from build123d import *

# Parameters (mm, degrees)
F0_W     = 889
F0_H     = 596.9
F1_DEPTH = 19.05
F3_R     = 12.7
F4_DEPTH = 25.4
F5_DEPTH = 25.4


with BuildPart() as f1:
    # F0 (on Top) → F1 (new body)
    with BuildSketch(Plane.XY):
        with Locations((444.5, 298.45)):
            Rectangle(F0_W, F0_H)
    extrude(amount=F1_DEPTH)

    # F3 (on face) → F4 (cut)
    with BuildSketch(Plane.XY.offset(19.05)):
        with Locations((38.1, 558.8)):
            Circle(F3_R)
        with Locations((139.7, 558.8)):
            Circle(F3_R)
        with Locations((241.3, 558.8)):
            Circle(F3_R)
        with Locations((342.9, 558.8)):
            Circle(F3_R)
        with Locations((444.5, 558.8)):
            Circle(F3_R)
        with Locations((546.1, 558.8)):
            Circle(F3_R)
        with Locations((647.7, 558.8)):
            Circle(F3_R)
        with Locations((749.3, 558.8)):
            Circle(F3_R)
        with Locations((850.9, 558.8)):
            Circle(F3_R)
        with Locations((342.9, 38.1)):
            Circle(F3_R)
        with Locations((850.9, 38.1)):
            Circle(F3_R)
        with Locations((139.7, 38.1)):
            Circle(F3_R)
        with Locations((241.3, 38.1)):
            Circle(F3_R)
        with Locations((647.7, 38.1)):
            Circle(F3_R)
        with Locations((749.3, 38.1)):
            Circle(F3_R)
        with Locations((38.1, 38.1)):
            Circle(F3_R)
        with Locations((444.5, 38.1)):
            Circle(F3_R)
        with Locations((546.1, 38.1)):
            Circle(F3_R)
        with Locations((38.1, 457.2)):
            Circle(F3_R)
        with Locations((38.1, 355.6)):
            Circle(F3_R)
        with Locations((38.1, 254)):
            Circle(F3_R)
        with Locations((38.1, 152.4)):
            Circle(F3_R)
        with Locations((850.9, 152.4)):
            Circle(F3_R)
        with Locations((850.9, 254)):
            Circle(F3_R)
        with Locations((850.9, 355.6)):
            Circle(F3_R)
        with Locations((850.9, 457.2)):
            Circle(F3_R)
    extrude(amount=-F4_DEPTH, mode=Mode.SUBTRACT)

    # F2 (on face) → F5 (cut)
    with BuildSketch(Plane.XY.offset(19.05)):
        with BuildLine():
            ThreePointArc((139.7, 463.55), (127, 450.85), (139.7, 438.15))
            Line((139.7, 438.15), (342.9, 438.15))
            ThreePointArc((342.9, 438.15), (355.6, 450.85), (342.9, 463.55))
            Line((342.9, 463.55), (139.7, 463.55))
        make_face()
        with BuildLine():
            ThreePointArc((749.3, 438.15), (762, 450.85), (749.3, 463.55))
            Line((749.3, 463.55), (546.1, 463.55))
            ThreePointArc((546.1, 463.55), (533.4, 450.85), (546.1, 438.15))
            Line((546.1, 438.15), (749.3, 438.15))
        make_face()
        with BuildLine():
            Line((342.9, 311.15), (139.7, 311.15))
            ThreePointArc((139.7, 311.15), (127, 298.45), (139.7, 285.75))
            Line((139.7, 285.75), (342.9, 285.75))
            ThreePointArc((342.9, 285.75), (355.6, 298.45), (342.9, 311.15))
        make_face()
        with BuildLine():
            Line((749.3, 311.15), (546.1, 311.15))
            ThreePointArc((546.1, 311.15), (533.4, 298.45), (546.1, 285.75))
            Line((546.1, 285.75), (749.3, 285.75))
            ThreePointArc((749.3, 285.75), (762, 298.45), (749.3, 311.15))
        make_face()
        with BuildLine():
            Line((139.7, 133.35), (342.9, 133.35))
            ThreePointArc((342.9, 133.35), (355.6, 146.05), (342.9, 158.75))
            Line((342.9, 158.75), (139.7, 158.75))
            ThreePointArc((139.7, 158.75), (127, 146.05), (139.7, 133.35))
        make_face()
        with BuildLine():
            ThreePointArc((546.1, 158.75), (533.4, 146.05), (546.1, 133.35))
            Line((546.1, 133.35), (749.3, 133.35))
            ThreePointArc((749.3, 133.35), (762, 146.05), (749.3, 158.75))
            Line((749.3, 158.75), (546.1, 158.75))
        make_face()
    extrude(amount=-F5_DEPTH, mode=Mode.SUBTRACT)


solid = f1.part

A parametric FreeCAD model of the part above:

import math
import FreeCAD as App
import Part
import Sketcher
from FreeCAD import Vector
Q = App.Units.Quantity

doc = App.newDocument("Part")
body = doc.addObject("PartDesign::Body", "Body")

# Sketch on XY plane
sketch1 = body.newObject("Sketcher::SketchObject", "Sketch")
sketch1.AttachmentSupport = (doc.getObject("XY_Plane"), [""])
sketch1.MapMode = "FlatFace"
sketch1.addGeometry(Part.LineSegment(Vector(0, 597, 0), Vector(0, 0, 0)), False)
sketch1.addGeometry(Part.LineSegment(Vector(0, 0, 0), Vector(889, 0, 0)), False)
sketch1.addGeometry(Part.LineSegment(Vector(889, 0, 0), Vector(889, 597, 0)), False)
sketch1.addGeometry(Part.LineSegment(Vector(889, 597, 0), Vector(0, 597, 0)), False)
sketch1.addConstraint(Sketcher.Constraint("Coincident", 0, 2, 1, 1))
sketch1.addConstraint(Sketcher.Constraint("Coincident", 1, 2, 2, 1))
sketch1.addConstraint(Sketcher.Constraint("Coincident", 2, 2, 3, 1))
sketch1.addConstraint(Sketcher.Constraint("Coincident", 3, 2, 0, 1))
sketch1.addConstraint(Sketcher.Constraint("Vertical", 0))
sketch1.addConstraint(Sketcher.Constraint("Horizontal", 1))
sketch1.addConstraint(Sketcher.Constraint("Vertical", 2))
sketch1.addConstraint(Sketcher.Constraint("Horizontal", 3))
sketch1.addConstraint(Sketcher.Constraint("Coincident", 0, 2, -1, 1))
sketch1.addConstraint(Sketcher.Constraint("DistanceX", 1, 1, 1, 2, Q("35 in")))
sketch1.addConstraint(Sketcher.Constraint("DistanceY", 0, 2, 0, 1, Q("23.5 in")))
pad1 = body.newObject("PartDesign::Pad", "Pad")
pad1.Profile = sketch1
pad1.Length = Q("0.75 in")

# Sketch on XY plane
sketch2 = body.newObject("Sketcher::SketchObject", "Sketch001")
sketch2.AttachmentSupport = (doc.getObject("XY_Plane"), [""])
sketch2.MapMode = "FlatFace"
sketch2.AttachmentOffset = App.Placement(Vector(0, 0, 0.75 * 25.4), App.Rotation())
sketch2.addGeometry(Part.Circle(Vector(38, 559, 0), Vector(0, 0, 1), 13), False)
sketch2.addGeometry(Part.Circle(Vector(140, 559, 0), Vector(0, 0, 1), 13), False)
sketch2.addGeometry(Part.Circle(Vector(241, 559, 0), Vector(0, 0, 1), 13), False)
sketch2.addGeometry(Part.Circle(Vector(343, 559, 0), Vector(0, 0, 1), 13), False)
sketch2.addGeometry(Part.Circle(Vector(444, 559, 0), Vector(0, 0, 1), 13), False)
sketch2.addGeometry(Part.Circle(Vector(546, 559, 0), Vector(0, 0, 1), 13), False)
sketch2.addGeometry(Part.Circle(Vector(648, 559, 0), Vector(0, 0, 1), 13), False)
sketch2.addGeometry(Part.Circle(Vector(749, 559, 0), Vector(0, 0, 1), 13), False)
sketch2.addGeometry(Part.Circle(Vector(851, 559, 0), Vector(0, 0, 1), 13), False)
sketch2.addGeometry(Part.Circle(Vector(343, 38, 0), Vector(0, 0, 1), 13), False)
sketch2.addGeometry(Part.Circle(Vector(851, 38, 0), Vector(0, 0, 1), 13), False)
sketch2.addGeometry(Part.Circle(Vector(140, 38, 0), Vector(0, 0, 1), 13), False)
sketch2.addGeometry(Part.Circle(Vector(241, 38, 0), Vector(0, 0, 1), 13), False)
sketch2.addGeometry(Part.Circle(Vector(648, 38, 0), Vector(0, 0, 1), 13), False)
sketch2.addGeometry(Part.Circle(Vector(749, 38, 0), Vector(0, 0, 1), 13), False)
sketch2.addGeometry(Part.Circle(Vector(38, 38, 0), Vector(0, 0, 1), 13), False)
sketch2.addGeometry(Part.Circle(Vector(444, 38, 0), Vector(0, 0, 1), 13), False)
sketch2.addGeometry(Part.Circle(Vector(546, 38, 0), Vector(0, 0, 1), 13), False)
sketch2.addGeometry(Part.Circle(Vector(38, 457, 0), Vector(0, 0, 1), 13), False)
sketch2.addGeometry(Part.Circle(Vector(38, 356, 0), Vector(0, 0, 1), 13), False)
sketch2.addGeometry(Part.Circle(Vector(38, 254, 0), Vector(0, 0, 1), 13), False)
sketch2.addGeometry(Part.Circle(Vector(38, 152, 0), Vector(0, 0, 1), 13), False)
sketch2.addGeometry(Part.Circle(Vector(851, 152, 0), Vector(0, 0, 1), 13), False)
sketch2.addGeometry(Part.Circle(Vector(851, 254, 0), Vector(0, 0, 1), 13), False)
sketch2.addGeometry(Part.Circle(Vector(851, 356, 0), Vector(0, 0, 1), 13), False)
sketch2.addGeometry(Part.Circle(Vector(851, 457, 0), Vector(0, 0, 1), 13), False)
sketch2.addConstraint(Sketcher.Constraint("Equal", 0, 1))
sketch2.addConstraint(Sketcher.Constraint("Equal", 1, 2))
sketch2.addConstraint(Sketcher.Constraint("Equal", 2, 3))
sketch2.addConstraint(Sketcher.Constraint("Equal", 3, 4))
sketch2.addConstraint(Sketcher.Constraint("Equal", 4, 5))
sketch2.addConstraint(Sketcher.Constraint("Equal", 5, 6))
sketch2.addConstraint(Sketcher.Constraint("Equal", 6, 7))
sketch2.addConstraint(Sketcher.Constraint("Equal", 7, 8))
sketch2.addConstraint(Sketcher.Constraint("Equal", 8, 9))
sketch2.addConstraint(Sketcher.Constraint("Equal", 9, 10))
sketch2.addConstraint(Sketcher.Constraint("Equal", 10, 11))
sketch2.addConstraint(Sketcher.Constraint("Equal", 11, 12))
sketch2.addConstraint(Sketcher.Constraint("Equal", 12, 13))
sketch2.addConstraint(Sketcher.Constraint("Equal", 13, 14))
sketch2.addConstraint(Sketcher.Constraint("Equal", 14, 15))
sketch2.addConstraint(Sketcher.Constraint("Equal", 15, 16))
sketch2.addConstraint(Sketcher.Constraint("Equal", 16, 17))
sketch2.addConstraint(Sketcher.Constraint("Equal", 17, 18))
sketch2.addConstraint(Sketcher.Constraint("Equal", 18, 19))
sketch2.addConstraint(Sketcher.Constraint("Equal", 19, 20))
sketch2.addConstraint(Sketcher.Constraint("Equal", 20, 21))
sketch2.addConstraint(Sketcher.Constraint("Equal", 21, 22))
sketch2.addConstraint(Sketcher.Constraint("Equal", 22, 23))
sketch2.addConstraint(Sketcher.Constraint("Equal", 23, 24))
sketch2.addConstraint(Sketcher.Constraint("Equal", 24, 25))
sketch2.addConstraint(Sketcher.Constraint("Horizontal", 0, 3, 1, 3))
sketch2.addConstraint(Sketcher.Constraint("Horizontal", 1, 3, 2, 3))
sketch2.addConstraint(Sketcher.Constraint("Horizontal", 2, 3, 3, 3))
sketch2.addConstraint(Sketcher.Constraint("Horizontal", 3, 3, 4, 3))
sketch2.addConstraint(Sketcher.Constraint("Horizontal", 4, 3, 5, 3))
sketch2.addConstraint(Sketcher.Constraint("Horizontal", 5, 3, 6, 3))
sketch2.addConstraint(Sketcher.Constraint("Horizontal", 6, 3, 7, 3))
sketch2.addConstraint(Sketcher.Constraint("Horizontal", 7, 3, 8, 3))
sketch2.addConstraint(Sketcher.Constraint("Horizontal", 9, 3, 10, 3))
sketch2.addConstraint(Sketcher.Constraint("Horizontal", 10, 3, 11, 3))
sketch2.addConstraint(Sketcher.Constraint("Horizontal", 11, 3, 12, 3))
sketch2.addConstraint(Sketcher.Constraint("Horizontal", 12, 3, 13, 3))
sketch2.addConstraint(Sketcher.Constraint("Horizontal", 13, 3, 14, 3))
sketch2.addConstraint(Sketcher.Constraint("Horizontal", 14, 3, 15, 3))
sketch2.addConstraint(Sketcher.Constraint("Horizontal", 15, 3, 16, 3))
sketch2.addConstraint(Sketcher.Constraint("Horizontal", 16, 3, 17, 3))
sketch2.addConstraint(Sketcher.Constraint("Horizontal", 21, 3, 22, 3))
sketch2.addConstraint(Sketcher.Constraint("Horizontal", 20, 3, 23, 3))
sketch2.addConstraint(Sketcher.Constraint("Horizontal", 19, 3, 24, 3))
sketch2.addConstraint(Sketcher.Constraint("Horizontal", 18, 3, 25, 3))
sketch2.addConstraint(Sketcher.Constraint("Vertical", 3, 3, 9, 3))
sketch2.addConstraint(Sketcher.Constraint("Vertical", 8, 3, 10, 3))
sketch2.addConstraint(Sketcher.Constraint("Vertical", 1, 3, 11, 3))
sketch2.addConstraint(Sketcher.Constraint("Vertical", 2, 3, 12, 3))
sketch2.addConstraint(Sketcher.Constraint("Vertical", 6, 3, 13, 3))
sketch2.addConstraint(Sketcher.Constraint("Vertical", 7, 3, 14, 3))
sketch2.addConstraint(Sketcher.Constraint("Vertical", 0, 3, 15, 3))
sketch2.addConstraint(Sketcher.Constraint("Vertical", 4, 3, 16, 3))
sketch2.addConstraint(Sketcher.Constraint("Vertical", 5, 3, 17, 3))
sketch2.addConstraint(Sketcher.Constraint("Vertical", 15, 3, 18, 3))
sketch2.addConstraint(Sketcher.Constraint("Vertical", 18, 3, 19, 3))
sketch2.addConstraint(Sketcher.Constraint("Vertical", 19, 3, 20, 3))
sketch2.addConstraint(Sketcher.Constraint("Vertical", 20, 3, 21, 3))
sketch2.addConstraint(Sketcher.Constraint("Vertical", 10, 3, 22, 3))
sketch2.addConstraint(Sketcher.Constraint("Vertical", 22, 3, 23, 3))
sketch2.addConstraint(Sketcher.Constraint("Vertical", 23, 3, 24, 3))
sketch2.addConstraint(Sketcher.Constraint("Vertical", 24, 3, 25, 3))
sketch2.addConstraint(Sketcher.Constraint("Diameter", 0, Q("1 in")))
sketch2.addConstraint(Sketcher.Constraint("DistanceY", -1, 1, 0, 3, Q("22 in")))
sketch2.addConstraint(Sketcher.Constraint("DistanceY", -1, 1, 18, 3, Q("18 in")))
sketch2.addConstraint(Sketcher.Constraint("DistanceY", -1, 1, 19, 3, Q("14 in")))
sketch2.addConstraint(Sketcher.Constraint("DistanceY", -1, 1, 20, 3, Q("10 in")))
sketch2.addConstraint(Sketcher.Constraint("DistanceY", -1, 1, 21, 3, Q("6 in")))
sketch2.addConstraint(Sketcher.Constraint("DistanceX", 0, 3, 1, 3, Q("4 in")))
sketch2.addConstraint(Sketcher.Constraint("DistanceX", 1, 3, 2, 3, Q("4 in")))
sketch2.addConstraint(Sketcher.Constraint("DistanceX", 2, 3, 3, 3, Q("4 in")))
sketch2.addConstraint(Sketcher.Constraint("DistanceX", 3, 3, 4, 3, Q("4 in")))
sketch2.addConstraint(Sketcher.Constraint("DistanceX", 4, 3, 5, 3, Q("4 in")))
sketch2.addConstraint(Sketcher.Constraint("DistanceX", 5, 3, 6, 3, Q("4 in")))
sketch2.addConstraint(Sketcher.Constraint("DistanceX", 6, 3, 7, 3, Q("4 in")))
sketch2.addConstraint(Sketcher.Constraint("DistanceX", 7, 3, 8, 3, Q("4 in")))
sketch2.addConstraint(Sketcher.Constraint("DistanceX", -1, 1, 0, 3, Q("1.5 in")))
sketch2.addConstraint(Sketcher.Constraint("DistanceY", -1, 1, 9, 3, Q("1.5 in")))
pocket1 = body.newObject("PartDesign::Pocket", "Pocket")
pocket1.Profile = sketch2
pocket1.Length = Q("1 in")

# Sketch on XY plane
sketch3 = body.newObject("Sketcher::SketchObject", "Sketch002")
sketch3.AttachmentSupport = (doc.getObject("XY_Plane"), [""])
sketch3.MapMode = "FlatFace"
sketch3.AttachmentOffset = App.Placement(Vector(0, 0, 0.75 * 25.4), App.Rotation())
sketch3.addGeometry(Part.ArcOfCircle(Part.Circle(Vector(140, 451, 0), Vector(0, 0, 1), 13), math.radians(90), math.radians(270)), False)
sketch3.addGeometry(Part.LineSegment(Vector(140, 438, 0), Vector(343, 438, 0)), False)
sketch3.addGeometry(Part.ArcOfCircle(Part.Circle(Vector(343, 451, 0), Vector(0, 0, 1), 13), math.radians(-90), math.radians(90)), False)
sketch3.addGeometry(Part.LineSegment(Vector(343, 464, 0), Vector(140, 464, 0)), False)
sketch3.addGeometry(Part.ArcOfCircle(Part.Circle(Vector(749, 451, 0), Vector(0, 0, 1), 13), math.radians(-90), math.radians(90)), False)
sketch3.addGeometry(Part.LineSegment(Vector(749, 464, 0), Vector(546, 464, 0)), False)
sketch3.addGeometry(Part.ArcOfCircle(Part.Circle(Vector(546, 451, 0), Vector(0, 0, 1), 13), math.radians(90), math.radians(270)), False)
sketch3.addGeometry(Part.LineSegment(Vector(546, 438, 0), Vector(749, 438, 0)), False)
sketch3.addGeometry(Part.LineSegment(Vector(343, 311, 0), Vector(140, 311, 0)), False)
sketch3.addGeometry(Part.ArcOfCircle(Part.Circle(Vector(140, 298, 0), Vector(0, 0, 1), 13), math.radians(90), math.radians(270)), False)
sketch3.addGeometry(Part.LineSegment(Vector(140, 286, 0), Vector(343, 286, 0)), False)
sketch3.addGeometry(Part.ArcOfCircle(Part.Circle(Vector(343, 298, 0), Vector(0, 0, 1), 13), math.radians(-90), math.radians(90)), False)
sketch3.addGeometry(Part.LineSegment(Vector(749, 311, 0), Vector(546, 311, 0)), False)
sketch3.addGeometry(Part.ArcOfCircle(Part.Circle(Vector(546, 298, 0), Vector(0, 0, 1), 13), math.radians(90), math.radians(270)), False)
sketch3.addGeometry(Part.LineSegment(Vector(546, 286, 0), Vector(749, 286, 0)), False)
sketch3.addGeometry(Part.ArcOfCircle(Part.Circle(Vector(749, 298, 0), Vector(0, 0, 1), 13), math.radians(-90), math.radians(90)), False)
sketch3.addGeometry(Part.LineSegment(Vector(140, 133, 0), Vector(343, 133, 0)), False)
sketch3.addGeometry(Part.ArcOfCircle(Part.Circle(Vector(343, 146, 0), Vector(0, 0, 1), 13), math.radians(-90), math.radians(90)), False)
sketch3.addGeometry(Part.LineSegment(Vector(343, 159, 0), Vector(140, 159, 0)), False)
sketch3.addGeometry(Part.ArcOfCircle(Part.Circle(Vector(140, 146, 0), Vector(0, 0, 1), 13), math.radians(90), math.radians(270)), False)
sketch3.addGeometry(Part.ArcOfCircle(Part.Circle(Vector(546, 146, 0), Vector(0, 0, 1), 13), math.radians(90), math.radians(270)), False)
sketch3.addGeometry(Part.LineSegment(Vector(546, 133, 0), Vector(749, 133, 0)), False)
sketch3.addGeometry(Part.ArcOfCircle(Part.Circle(Vector(749, 146, 0), Vector(0, 0, 1), 13), math.radians(-90), math.radians(90)), False)
sketch3.addGeometry(Part.LineSegment(Vector(749, 159, 0), Vector(546, 159, 0)), False)
sketch3.addConstraint(Sketcher.Constraint("Tangent", 0, 2, 1, 1))
sketch3.addConstraint(Sketcher.Constraint("Tangent", 1, 2, 2, 1))
sketch3.addConstraint(Sketcher.Constraint("Tangent", 2, 2, 3, 1))
sketch3.addConstraint(Sketcher.Constraint("Tangent", 3, 2, 0, 1))
sketch3.addConstraint(Sketcher.Constraint("Tangent", 4, 2, 5, 1))
sketch3.addConstraint(Sketcher.Constraint("Tangent", 5, 2, 6, 1))
sketch3.addConstraint(Sketcher.Constraint("Tangent", 6, 2, 7, 1))
sketch3.addConstraint(Sketcher.Constraint("Tangent", 7, 2, 4, 1))
sketch3.addConstraint(Sketcher.Constraint("Tangent", 8, 2, 9, 1))
sketch3.addConstraint(Sketcher.Constraint("Tangent", 9, 2, 10, 1))
sketch3.addConstraint(Sketcher.Constraint("Tangent", 10, 2, 11, 1))
sketch3.addConstraint(Sketcher.Constraint("Tangent", 11, 2, 8, 1))
sketch3.addConstraint(Sketcher.Constraint("Tangent", 12, 2, 13, 1))
sketch3.addConstraint(Sketcher.Constraint("Tangent", 13, 2, 14, 1))
sketch3.addConstraint(Sketcher.Constraint("Tangent", 14, 2, 15, 1))
sketch3.addConstraint(Sketcher.Constraint("Tangent", 15, 2, 12, 1))
sketch3.addConstraint(Sketcher.Constraint("Tangent", 16, 2, 17, 1))
sketch3.addConstraint(Sketcher.Constraint("Tangent", 17, 2, 18, 1))
sketch3.addConstraint(Sketcher.Constraint("Tangent", 18, 2, 19, 1))
sketch3.addConstraint(Sketcher.Constraint("Tangent", 19, 2, 16, 1))
sketch3.addConstraint(Sketcher.Constraint("Tangent", 20, 2, 21, 1))
sketch3.addConstraint(Sketcher.Constraint("Tangent", 21, 2, 22, 1))
sketch3.addConstraint(Sketcher.Constraint("Tangent", 22, 2, 23, 1))
sketch3.addConstraint(Sketcher.Constraint("Tangent", 23, 2, 20, 1))
sketch3.addConstraint(Sketcher.Constraint("Horizontal", 1))
sketch3.addConstraint(Sketcher.Constraint("Horizontal", 3))
sketch3.addConstraint(Sketcher.Constraint("Horizontal", 5))
sketch3.addConstraint(Sketcher.Constraint("Horizontal", 7))
sketch3.addConstraint(Sketcher.Constraint("Horizontal", 8))
sketch3.addConstraint(Sketcher.Constraint("Horizontal", 10))
sketch3.addConstraint(Sketcher.Constraint("Horizontal", 12))
sketch3.addConstraint(Sketcher.Constraint("Horizontal", 14))
sketch3.addConstraint(Sketcher.Constraint("Horizontal", 16))
sketch3.addConstraint(Sketcher.Constraint("Horizontal", 18))
sketch3.addConstraint(Sketcher.Constraint("Horizontal", 21))
sketch3.addConstraint(Sketcher.Constraint("Horizontal", 23))
sketch3.addConstraint(Sketcher.Constraint("Equal", 2, 4))
sketch3.addConstraint(Sketcher.Constraint("Equal", 6, 9))
sketch3.addConstraint(Sketcher.Constraint("Equal", 11, 13))
sketch3.addConstraint(Sketcher.Constraint("Equal", 15, 17))
sketch3.addConstraint(Sketcher.Constraint("Equal", 19, 20))
sketch3.addConstraint(Sketcher.Constraint("Horizontal", 2, 3, 4, 3))
sketch3.addConstraint(Sketcher.Constraint("Horizontal", 11, 3, 13, 3))
sketch3.addConstraint(Sketcher.Constraint("Horizontal", 19, 3, 20, 3))
sketch3.addConstraint(Sketcher.Constraint("Vertical", 0, 3, 9, 3))
sketch3.addConstraint(Sketcher.Constraint("Vertical", 2, 3, 11, 3))
sketch3.addConstraint(Sketcher.Constraint("Vertical", 6, 3, 13, 3))
sketch3.addConstraint(Sketcher.Constraint("Vertical", 4, 3, 15, 3))
sketch3.addConstraint(Sketcher.Constraint("Vertical", 11, 3, 17, 3))
sketch3.addConstraint(Sketcher.Constraint("Vertical", 9, 3, 19, 3))
sketch3.addConstraint(Sketcher.Constraint("Vertical", 13, 3, 20, 3))
sketch3.addConstraint(Sketcher.Constraint("Vertical", 15, 3, 22, 3))
sketch3.addConstraint(Sketcher.Constraint("Equal", 3, 5))
sketch3.addConstraint(Sketcher.Constraint("Radius", 0, Q("0.5 in")))
sketch3.addConstraint(Sketcher.Constraint("DistanceX", 1, 1, 1, 2, Q("8 in")))
sketch3.addConstraint(Sketcher.Constraint("DistanceX", 2, 3, 4, 3, Q("16 in")))
sketch3.addConstraint(Sketcher.Constraint("DistanceY", 9, 3, 0, 3, Q("6 in")))
sketch3.addConstraint(Sketcher.Constraint("DistanceY", 17, 3, 11, 3, Q("6 in")))
sketch3.addConstraint(Sketcher.Constraint("DistanceX", -1, 1, 0, 3, Q("5.5 in")))
sketch3.addConstraint(Sketcher.Constraint("DistanceY", -1, 1, 0, 3, Q("17.75 in")))
pocket2 = body.newObject("PartDesign::Pocket", "Pocket001")
pocket2.Profile = sketch3
pocket2.Length = Q("1 in")

doc.recompute()
